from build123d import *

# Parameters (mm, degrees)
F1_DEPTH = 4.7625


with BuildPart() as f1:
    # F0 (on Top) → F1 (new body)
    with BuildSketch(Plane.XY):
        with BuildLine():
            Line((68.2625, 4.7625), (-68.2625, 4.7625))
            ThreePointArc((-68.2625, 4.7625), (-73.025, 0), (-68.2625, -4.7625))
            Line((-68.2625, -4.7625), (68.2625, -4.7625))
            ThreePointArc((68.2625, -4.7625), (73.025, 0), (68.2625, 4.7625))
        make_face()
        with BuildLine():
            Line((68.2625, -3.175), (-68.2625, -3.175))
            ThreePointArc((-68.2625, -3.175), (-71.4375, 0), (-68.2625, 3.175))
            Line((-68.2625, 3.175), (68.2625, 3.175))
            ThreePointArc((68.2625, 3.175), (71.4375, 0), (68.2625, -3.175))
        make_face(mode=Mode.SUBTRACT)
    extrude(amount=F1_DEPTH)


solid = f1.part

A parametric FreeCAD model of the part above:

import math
import FreeCAD as App
import Part
import Sketcher
from FreeCAD import Vector
Q = App.Units.Quantity

doc = App.newDocument("Part")
params = doc.addObject("Spreadsheet::Sheet", "Params")
for row, (alias, value) in enumerate([
    ("sketch1_radius", "0.1875 in"),
    ("sketch1_radius2", "0.125 in"),
    ("sketch1_width", "5.375 in"),
    ("pad1_length", "0.1875 in"),
], start=1):
    params.set(f"A{row}", alias)
    params.set(f"B{row}", "=" + value)
    params.setAlias(f"B{row}", alias)

body = doc.addObject("PartDesign::Body", "Body")

sketch1 = body.newObject("Sketcher::SketchObject", "Sketch")
sketch1.AttachmentSupport = (doc.getObject("XY_Plane"), [""])
sketch1.MapMode = "FlatFace"
sketch1.addGeometry(Part.LineSegment(Vector(68.3, 4.8, 0), Vector(-68.3, 4.8, 0)), False)
sketch1.addGeometry(Part.ArcOfCircle(Part.Circle(Vector(-68.3, 0, 0), Vector(0, 0, 1), 4.8), math.radians(90), math.radians(270)), False)
sketch1.addGeometry(Part.LineSegment(Vector(-68.3, -4.8, 0), Vector(68.3, -4.8, 0)), False)
sketch1.addGeometry(Part.ArcOfCircle(Part.Circle(Vector(68.3, 0, 0), Vector(0, 0, 1), 4.8), math.radians(-90), math.radians(90)), False)
sketch1.addGeometry(Part.ArcOfCircle(Part.Circle(Vector(68.3, 0, 0), Vector(0, 0, 1), 3.2), math.radians(-90), math.radians(90)), False)
sketch1.addGeometry(Part.LineSegment(Vector(68.3, -3.2, 0), Vector(-68.3, -3.2, 0)), False)
sketch1.addGeometry(Part.ArcOfCircle(Part.Circle(Vector(-68.3, 0, 0), Vector(0, 0, 1), 3.2), math.radians(90), math.radians(270)), False)
sketch1.addGeometry(Part.LineSegment(Vector(-68.3, 3.2, 0), Vector(68.3, 3.2, 0)), False)
sketch1.addConstraint(Sketcher.Constraint("Tangent", 0, 2, 1, 1))
sketch1.addConstraint(Sketcher.Constraint("Tangent", 1, 2, 2, 1))
sketch1.addConstraint(Sketcher.Constraint("Tangent", 2, 2, 3, 1))
sketch1.addConstraint(Sketcher.Constraint("Tangent", 3, 2, 0, 1))
sketch1.addConstraint(Sketcher.Constraint("Tangent", 4, 1, 5, 1))
sketch1.addConstraint(Sketcher.Constraint("Tangent", 5, 2, 6, 2))
sketch1.addConstraint(Sketcher.Constraint("Tangent", 6, 1, 7, 1))
sketch1.addConstraint(Sketcher.Constraint("Tangent", 7, 2, 4, 2))
sketch1.addConstraint(Sketcher.Constraint("Horizontal", 0))
sketch1.addConstraint(Sketcher.Constraint("Horizontal", 2))
sketch1.addConstraint(Sketcher.Constraint("Horizontal", 5))
sketch1.addConstraint(Sketcher.Constraint("Horizontal", 7))
sketch1.addConstraint(Sketcher.Constraint("Coincident", 4, 3, 3, 3))
sketch1.addConstraint(Sketcher.Constraint("Symmetric", 1, 3, 3, 3, -1, 1))
sketch1.addConstraint(Sketcher.Constraint("Vertical", 6, 3, 0, 2))
sketch1.addConstraint(Sketcher.Constraint("Radius", 1, Q("0.1875 in")))
sketch1.addConstraint(Sketcher.Constraint("Radius", 4, Q("0.125 in")))
sketch1.addConstraint(Sketcher.Constraint("DistanceX", 0, 2, 0, 1, Q("5.375 in")))
sketch1.setExpression("Constraints[15]", "Params.sketch1_radius")
sketch1.setExpression("Constraints[16]", "Params.sketch1_radius2")
sketch1.setExpression("Constraints[17]", "Params.sketch1_width")
pad1 = body.newObject("PartDesign::Pad", "Pad")
pad1.Profile = sketch1
pad1.setExpression("Length", "Params.pad1_length")

doc.recompute()
